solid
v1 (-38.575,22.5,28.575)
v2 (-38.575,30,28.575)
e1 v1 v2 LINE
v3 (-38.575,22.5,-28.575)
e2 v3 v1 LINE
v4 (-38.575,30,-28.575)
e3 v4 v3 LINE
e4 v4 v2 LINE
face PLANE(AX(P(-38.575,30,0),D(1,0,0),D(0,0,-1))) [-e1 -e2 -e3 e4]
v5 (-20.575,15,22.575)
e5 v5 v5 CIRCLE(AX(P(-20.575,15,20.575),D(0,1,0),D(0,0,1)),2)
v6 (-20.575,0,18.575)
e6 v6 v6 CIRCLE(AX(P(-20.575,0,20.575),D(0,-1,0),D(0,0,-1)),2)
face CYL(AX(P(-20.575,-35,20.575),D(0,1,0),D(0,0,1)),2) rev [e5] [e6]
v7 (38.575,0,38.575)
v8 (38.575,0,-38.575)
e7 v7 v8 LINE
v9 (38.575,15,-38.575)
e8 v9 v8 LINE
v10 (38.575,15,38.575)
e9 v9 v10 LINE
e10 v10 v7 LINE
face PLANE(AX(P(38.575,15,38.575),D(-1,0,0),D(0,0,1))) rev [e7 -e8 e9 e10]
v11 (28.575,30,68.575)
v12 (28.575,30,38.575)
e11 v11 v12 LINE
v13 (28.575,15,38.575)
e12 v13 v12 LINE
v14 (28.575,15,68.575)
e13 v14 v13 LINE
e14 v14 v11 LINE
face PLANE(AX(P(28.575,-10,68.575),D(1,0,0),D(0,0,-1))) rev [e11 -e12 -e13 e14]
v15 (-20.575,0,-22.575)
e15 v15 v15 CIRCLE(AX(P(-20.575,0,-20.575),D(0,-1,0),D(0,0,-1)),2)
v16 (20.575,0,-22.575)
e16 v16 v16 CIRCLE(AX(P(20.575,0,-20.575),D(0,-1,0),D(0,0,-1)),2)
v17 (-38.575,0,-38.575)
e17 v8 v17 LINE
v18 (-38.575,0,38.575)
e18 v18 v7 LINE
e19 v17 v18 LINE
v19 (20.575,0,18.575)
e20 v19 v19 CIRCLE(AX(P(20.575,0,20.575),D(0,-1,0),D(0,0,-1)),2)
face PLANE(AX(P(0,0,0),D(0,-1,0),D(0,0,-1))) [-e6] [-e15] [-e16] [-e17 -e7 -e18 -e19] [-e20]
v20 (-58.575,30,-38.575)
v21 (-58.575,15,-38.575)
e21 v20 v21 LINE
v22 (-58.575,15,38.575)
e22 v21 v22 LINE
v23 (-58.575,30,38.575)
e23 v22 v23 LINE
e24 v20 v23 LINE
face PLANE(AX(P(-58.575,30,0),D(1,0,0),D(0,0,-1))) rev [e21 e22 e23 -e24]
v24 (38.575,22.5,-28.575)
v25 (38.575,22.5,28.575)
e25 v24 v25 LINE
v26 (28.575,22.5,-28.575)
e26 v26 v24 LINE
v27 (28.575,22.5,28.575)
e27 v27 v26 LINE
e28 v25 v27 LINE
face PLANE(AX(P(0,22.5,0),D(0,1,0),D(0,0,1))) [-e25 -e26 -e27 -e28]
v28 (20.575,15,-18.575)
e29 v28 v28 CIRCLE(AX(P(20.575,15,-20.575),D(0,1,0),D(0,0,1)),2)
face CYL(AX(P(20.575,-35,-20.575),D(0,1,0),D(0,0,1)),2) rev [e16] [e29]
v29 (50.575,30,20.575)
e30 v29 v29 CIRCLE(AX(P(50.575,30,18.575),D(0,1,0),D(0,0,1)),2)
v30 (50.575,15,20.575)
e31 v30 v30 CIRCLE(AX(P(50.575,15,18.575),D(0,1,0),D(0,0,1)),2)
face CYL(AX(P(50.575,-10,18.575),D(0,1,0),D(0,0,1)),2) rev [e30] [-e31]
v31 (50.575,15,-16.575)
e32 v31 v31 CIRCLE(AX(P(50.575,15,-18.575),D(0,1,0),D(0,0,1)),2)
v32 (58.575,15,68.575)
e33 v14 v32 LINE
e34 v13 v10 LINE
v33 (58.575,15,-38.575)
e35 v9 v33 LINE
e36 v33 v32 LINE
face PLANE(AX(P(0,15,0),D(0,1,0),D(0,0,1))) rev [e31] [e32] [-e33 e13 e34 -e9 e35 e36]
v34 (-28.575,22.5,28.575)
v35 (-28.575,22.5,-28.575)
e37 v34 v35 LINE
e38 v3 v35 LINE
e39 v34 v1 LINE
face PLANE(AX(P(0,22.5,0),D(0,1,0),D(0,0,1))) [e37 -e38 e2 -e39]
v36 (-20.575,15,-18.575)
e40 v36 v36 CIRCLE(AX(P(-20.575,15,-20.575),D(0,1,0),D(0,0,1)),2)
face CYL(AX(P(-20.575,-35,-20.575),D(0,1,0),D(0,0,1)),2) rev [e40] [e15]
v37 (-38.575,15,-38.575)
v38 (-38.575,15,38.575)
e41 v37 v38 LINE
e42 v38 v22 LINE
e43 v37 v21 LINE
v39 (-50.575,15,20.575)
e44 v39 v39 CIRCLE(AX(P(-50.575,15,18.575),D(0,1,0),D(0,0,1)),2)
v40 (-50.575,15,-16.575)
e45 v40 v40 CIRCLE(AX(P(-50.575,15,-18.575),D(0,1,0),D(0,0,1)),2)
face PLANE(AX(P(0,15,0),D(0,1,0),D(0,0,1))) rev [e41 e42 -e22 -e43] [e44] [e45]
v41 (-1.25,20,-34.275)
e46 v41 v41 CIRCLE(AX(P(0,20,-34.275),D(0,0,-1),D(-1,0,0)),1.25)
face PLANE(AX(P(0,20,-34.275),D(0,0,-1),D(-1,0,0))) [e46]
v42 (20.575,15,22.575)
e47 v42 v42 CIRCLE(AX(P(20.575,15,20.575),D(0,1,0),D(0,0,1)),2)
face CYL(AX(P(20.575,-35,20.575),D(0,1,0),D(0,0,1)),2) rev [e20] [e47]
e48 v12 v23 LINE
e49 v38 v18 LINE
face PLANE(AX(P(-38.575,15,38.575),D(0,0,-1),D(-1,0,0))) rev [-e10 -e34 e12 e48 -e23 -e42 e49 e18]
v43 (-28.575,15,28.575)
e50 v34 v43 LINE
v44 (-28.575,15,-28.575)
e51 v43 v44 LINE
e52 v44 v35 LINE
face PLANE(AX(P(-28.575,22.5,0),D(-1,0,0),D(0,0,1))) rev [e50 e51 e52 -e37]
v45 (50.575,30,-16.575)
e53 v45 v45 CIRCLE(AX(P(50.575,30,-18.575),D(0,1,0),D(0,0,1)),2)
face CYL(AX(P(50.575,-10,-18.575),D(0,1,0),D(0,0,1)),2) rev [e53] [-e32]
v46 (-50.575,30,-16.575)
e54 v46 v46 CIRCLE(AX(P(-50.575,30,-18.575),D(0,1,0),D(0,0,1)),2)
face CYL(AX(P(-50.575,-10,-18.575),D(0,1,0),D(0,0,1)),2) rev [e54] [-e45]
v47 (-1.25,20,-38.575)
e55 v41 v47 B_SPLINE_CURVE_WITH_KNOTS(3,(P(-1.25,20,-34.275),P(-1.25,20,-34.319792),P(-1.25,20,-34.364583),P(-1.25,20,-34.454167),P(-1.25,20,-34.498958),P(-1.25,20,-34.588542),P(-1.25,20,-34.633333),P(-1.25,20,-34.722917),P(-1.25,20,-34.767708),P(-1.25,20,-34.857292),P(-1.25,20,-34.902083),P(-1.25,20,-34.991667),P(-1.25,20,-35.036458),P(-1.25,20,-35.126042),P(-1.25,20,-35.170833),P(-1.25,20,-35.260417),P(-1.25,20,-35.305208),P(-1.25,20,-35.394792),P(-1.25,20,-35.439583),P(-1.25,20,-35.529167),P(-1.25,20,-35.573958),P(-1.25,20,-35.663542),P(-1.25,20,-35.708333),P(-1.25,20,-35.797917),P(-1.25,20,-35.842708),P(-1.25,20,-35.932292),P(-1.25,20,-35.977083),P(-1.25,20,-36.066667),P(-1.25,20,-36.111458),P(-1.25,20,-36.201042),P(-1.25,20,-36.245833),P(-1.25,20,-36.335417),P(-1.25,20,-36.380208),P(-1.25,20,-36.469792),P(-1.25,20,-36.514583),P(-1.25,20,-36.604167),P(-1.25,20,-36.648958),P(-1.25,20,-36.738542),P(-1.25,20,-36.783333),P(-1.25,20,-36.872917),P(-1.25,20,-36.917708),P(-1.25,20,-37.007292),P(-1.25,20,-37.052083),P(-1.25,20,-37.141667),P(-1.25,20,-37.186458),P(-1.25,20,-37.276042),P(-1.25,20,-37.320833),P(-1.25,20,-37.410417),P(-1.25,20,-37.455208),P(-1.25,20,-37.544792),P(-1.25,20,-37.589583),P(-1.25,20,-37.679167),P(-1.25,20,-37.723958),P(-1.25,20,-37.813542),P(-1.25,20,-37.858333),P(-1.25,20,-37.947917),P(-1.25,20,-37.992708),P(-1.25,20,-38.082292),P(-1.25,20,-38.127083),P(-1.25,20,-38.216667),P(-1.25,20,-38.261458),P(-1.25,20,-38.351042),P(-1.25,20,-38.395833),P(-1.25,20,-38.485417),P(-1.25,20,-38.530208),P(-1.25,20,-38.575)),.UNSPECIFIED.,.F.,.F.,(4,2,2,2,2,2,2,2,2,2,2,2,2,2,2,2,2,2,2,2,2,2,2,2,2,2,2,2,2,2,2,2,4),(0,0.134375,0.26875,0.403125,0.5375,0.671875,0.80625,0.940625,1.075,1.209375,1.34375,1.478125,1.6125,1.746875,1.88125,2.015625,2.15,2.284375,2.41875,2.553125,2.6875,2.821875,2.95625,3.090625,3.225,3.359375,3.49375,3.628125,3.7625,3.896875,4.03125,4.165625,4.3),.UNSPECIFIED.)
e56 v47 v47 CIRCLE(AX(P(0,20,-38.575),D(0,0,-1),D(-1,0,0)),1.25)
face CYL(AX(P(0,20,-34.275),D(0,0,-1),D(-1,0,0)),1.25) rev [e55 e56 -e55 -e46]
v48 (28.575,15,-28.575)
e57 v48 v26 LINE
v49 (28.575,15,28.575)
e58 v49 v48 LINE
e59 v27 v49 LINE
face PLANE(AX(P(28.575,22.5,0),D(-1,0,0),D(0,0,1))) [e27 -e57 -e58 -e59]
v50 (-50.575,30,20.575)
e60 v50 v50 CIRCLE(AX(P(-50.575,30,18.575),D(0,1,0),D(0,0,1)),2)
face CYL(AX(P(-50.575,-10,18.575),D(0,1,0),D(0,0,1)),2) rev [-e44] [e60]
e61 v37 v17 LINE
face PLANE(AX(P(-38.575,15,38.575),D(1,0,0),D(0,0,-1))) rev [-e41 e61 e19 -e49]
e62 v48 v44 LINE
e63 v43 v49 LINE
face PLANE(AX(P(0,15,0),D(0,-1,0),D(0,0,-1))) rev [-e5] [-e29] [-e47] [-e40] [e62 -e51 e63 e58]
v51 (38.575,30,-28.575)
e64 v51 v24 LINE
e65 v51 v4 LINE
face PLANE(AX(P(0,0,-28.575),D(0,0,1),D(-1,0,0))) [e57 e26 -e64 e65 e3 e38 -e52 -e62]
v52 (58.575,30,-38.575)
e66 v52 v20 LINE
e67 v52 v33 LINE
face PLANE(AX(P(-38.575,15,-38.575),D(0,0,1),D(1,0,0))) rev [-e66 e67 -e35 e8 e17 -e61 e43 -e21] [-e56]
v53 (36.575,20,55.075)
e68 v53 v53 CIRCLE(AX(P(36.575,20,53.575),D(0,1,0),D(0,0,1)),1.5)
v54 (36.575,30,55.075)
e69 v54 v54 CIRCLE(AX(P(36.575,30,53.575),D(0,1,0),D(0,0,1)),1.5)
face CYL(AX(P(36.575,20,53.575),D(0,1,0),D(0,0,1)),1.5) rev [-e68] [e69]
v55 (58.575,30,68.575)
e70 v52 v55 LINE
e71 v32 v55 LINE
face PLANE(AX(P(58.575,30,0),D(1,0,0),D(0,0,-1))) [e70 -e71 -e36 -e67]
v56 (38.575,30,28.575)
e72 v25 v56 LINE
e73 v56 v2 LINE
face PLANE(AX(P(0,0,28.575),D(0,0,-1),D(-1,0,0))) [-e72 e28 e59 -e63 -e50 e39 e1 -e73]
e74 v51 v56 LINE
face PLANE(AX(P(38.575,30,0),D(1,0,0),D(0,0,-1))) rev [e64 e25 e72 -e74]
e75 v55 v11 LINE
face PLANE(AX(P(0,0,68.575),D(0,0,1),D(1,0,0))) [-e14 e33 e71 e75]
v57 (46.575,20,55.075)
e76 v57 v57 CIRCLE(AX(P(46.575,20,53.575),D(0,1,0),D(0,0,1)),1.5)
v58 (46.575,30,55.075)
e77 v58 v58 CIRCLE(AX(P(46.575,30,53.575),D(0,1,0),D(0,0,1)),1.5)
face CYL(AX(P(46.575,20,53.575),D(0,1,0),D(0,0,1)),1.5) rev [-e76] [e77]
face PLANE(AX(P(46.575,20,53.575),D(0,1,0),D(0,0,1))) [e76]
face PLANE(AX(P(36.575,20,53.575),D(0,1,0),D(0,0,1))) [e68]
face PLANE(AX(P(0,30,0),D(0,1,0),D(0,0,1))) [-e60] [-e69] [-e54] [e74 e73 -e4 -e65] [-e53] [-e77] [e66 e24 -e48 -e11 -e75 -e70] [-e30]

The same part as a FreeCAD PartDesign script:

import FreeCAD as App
import Part
import Sketcher

V = App.Vector
Q = App.Units.Quantity

doc = App.newDocument("Part")
body = doc.addObject("PartDesign::Body", "Body")

# Sketch on XZ plane
sketch1 = body.newObject("Sketcher::SketchObject", "Sketch")
sketch1.AttachmentSupport = (doc.getObject("XZ_Plane"), [""])
sketch1.MapMode = "FlatFace"
sketch1.addGeometry([
    Part.LineSegment(V(-39, -39, 0), V(-39, 39, 0)),
    Part.LineSegment(V(-39, 39, 0), V(39, 39, 0)),
    Part.LineSegment(V(39, 39, 0), V(39, -39, 0)),
    Part.LineSegment(V(39, -39, 0), V(-39, -39, 0)),
], False)
sketch1.addConstraint([
    Sketcher.Constraint("Coincident", 0, 2, 1, 1),
    Sketcher.Constraint("Coincident", 1, 2, 2, 1),
    Sketcher.Constraint("Coincident", 2, 2, 3, 1),
    Sketcher.Constraint("Coincident", 3, 2, 0, 1),
    Sketcher.Constraint("Vertical", 0),
    Sketcher.Constraint("Horizontal", 1),
    Sketcher.Constraint("Vertical", 2),
    Sketcher.Constraint("Horizontal", 3),
    Sketcher.Constraint("Symmetric", 0, 2, 2, 2, -1, 1),
    Sketcher.Constraint("Equal", 3, 0),
    Sketcher.Constraint("DistanceX", 1, 1, 1, 2, Q("77.15 mm")),
])
pad1 = body.newObject("PartDesign::Pad", "Pad")
pad1.Profile = sketch1
pad1.Length = 15
pad1.Reversed = True

# Sketch on XZ plane
sketch2 = body.newObject("Sketcher::SketchObject", "Sketch001")
sketch2.AttachmentSupport = (doc.getObject("XZ_Plane"), [""])
sketch2.MapMode = "FlatFace"
sketch2.AttachmentOffset = App.Placement(V(0, 0, -15), App.Rotation())
sketch2.addGeometry([
    Part.LineSegment(V(-39, -39, 0), V(-39, 39, 0)),
    Part.LineSegment(V(-39, 39, 0), V(-29, 39, 0)),
    Part.LineSegment(V(-29, 39, 0), V(-29, -39, 0)),
    Part.LineSegment(V(-29, -39, 0), V(-39, -39, 0)),
], False)
sketch2.addConstraint([
    Sketcher.Constraint("Coincident", 0, 2, 1, 1),
    Sketcher.Constraint("Coincident", 1, 2, 2, 1),
    Sketcher.Constraint("Coincident", 2, 2, 3, 1),
    Sketcher.Constraint("Coincident", 3, 2, 0, 1),
    Sketcher.Constraint("Vertical", 0),
    Sketcher.Constraint("Horizontal", 1),
    Sketcher.Constraint("Vertical", 2),
    Sketcher.Constraint("Horizontal", 3),
    Sketcher.Constraint("DistanceX", 1, 1, 1, 2, Q("10 mm")),
    Sketcher.Constraint("DistanceY", 0, 1, 0, 2, Q("77.15 mm")),
    Sketcher.Constraint("DistanceX", 0, 2, -1, 1, Q("38.575 mm")),
    Sketcher.Constraint("DistanceY", -1, 1, 0, 2, Q("38.575 mm")),
])
pad2 = body.newObject("PartDesign::Pad", "Pad001")
pad2.Profile = sketch2
pad2.Length = 7.5
pad2.Reversed = True

# Sketch on XZ plane
sketch3 = body.newObject("Sketcher::SketchObject", "Sketch002")
sketch3.AttachmentSupport = (doc.getObject("XZ_Plane"), [""])
sketch3.MapMode = "FlatFace"
sketch3.AttachmentOffset = App.Placement(V(0, 0, -15), App.Rotation())
sketch3.addGeometry([
    Part.LineSegment(V(-59, -39, 0), V(-59, 39, 0)),
    Part.LineSegment(V(-59, 39, 0), V(-39, 39, 0)),
    Part.LineSegment(V(-39, 39, 0), V(-39, -39, 0)),
    Part.LineSegment(V(-39, -39, 0), V(-59, -39, 0)),
], False)
sketch3.addConstraint([
    Sketcher.Constraint("Coincident", 0, 2, 1, 1),
    Sketcher.Constraint("Coincident", 1, 2, 2, 1),
    Sketcher.Constraint("Coincident", 2, 2, 3, 1),
    Sketcher.Constraint("Coincident", 3, 2, 0, 1),
    Sketcher.Constraint("Vertical", 0),
    Sketcher.Constraint("Horizontal", 1),
    Sketcher.Constraint("Vertical", 2),
    Sketcher.Constraint("Horizontal", 3),
    Sketcher.Constraint("DistanceX", 1, 1, 1, 2, Q("20 mm")),
    Sketcher.Constraint("DistanceY", 0, 1, 0, 2, Q("77.15 mm")),
    Sketcher.Constraint("DistanceX", 0, 2, -1, 1, Q("58.575 mm")),
    Sketcher.Constraint("DistanceY", -1, 1, 0, 2, Q("38.575 mm")),
])
pad3 = body.newObject("PartDesign::Pad", "Pad002")
pad3.Profile = sketch3
pad3.Length = 15
pad3.Reversed = True
doc.recompute()

mirrored = body.newObject("PartDesign::Mirrored", "Mirrored")
mirrored.Originals = [pad2, pad3]
mirrored.MirrorPlane = (doc.getObject("YZ_Plane"), [""])
body.Tip = mirrored

# Sketch on XY plane
sketch4 = body.newObject("Sketcher::SketchObject", "Sketch003")
sketch4.AttachmentSupport = (doc.getObject("XY_Plane"), [""])
sketch4.MapMode = "FlatFace"
sketch4.AttachmentOffset = App.Placement(V(0, 0, 38.575), App.Rotation())
sketch4.addGeometry([
    Part.LineSegment(V(59, 30, 0), V(-59, 30, 0)),  # 0
    Part.LineSegment(V(-59, 30, 0), V(-59, 15, 0)),  # 1
    Part.LineSegment(V(-59, 15, 0), V(-39, 15, 0)),  # 2
    Part.LineSegment(V(-39, 15, 0), V(-39, 0, 0)),  # 3
    Part.LineSegment(V(-39, 0, 0), V(39, 0, 0)),  # 4
    Part.LineSegment(V(39, 0, 0), V(39, 15, 0)),  # 5
    Part.LineSegment(V(39, 15, 0), V(59, 15, 0)),  # 6
    Part.LineSegment(V(59, 15, 0), V(59, 30, 0)),  # 7
], False)
sketch4.addConstraint([
    Sketcher.Constraint("Coincident", 0, 2, 1, 1),
    Sketcher.Constraint("Coincident", 1, 2, 2, 1),
    Sketcher.Constraint("Coincident", 2, 2, 3, 1),
    Sketcher.Constraint("Coincident", 3, 2, 4, 1),
    Sketcher.Constraint("Coincident", 4, 2, 5, 1),
    Sketcher.Constraint("Coincident", 5, 2, 6, 1),
    Sketcher.Constraint("Coincident", 6, 2, 7, 1),
    Sketcher.Constraint("Coincident", 7, 2, 0, 1),
    Sketcher.Constraint("Horizontal", 0),
    Sketcher.Constraint("Vertical", 1),
    Sketcher.Constraint("Horizontal", 2),
    Sketcher.Constraint("Vertical", 3),
    Sketcher.Constraint("Horizontal", 4),
    Sketcher.Constraint("Vertical", 5),
    Sketcher.Constraint("Horizontal", 6),
    Sketcher.Constraint("Vertical", 7),
    Sketcher.Constraint("Symmetric", 3, 2, 4, 2, -1, 1),
    Sketcher.Constraint("Symmetric", 1, 2, 6, 2, -2),
    Sketcher.Constraint("Equal", 1, 3),
    Sketcher.Constraint("DistanceX", 2, 1, 2, 2, Q("20 mm")),
    Sketcher.Constraint("DistanceY", 1, 2, 1, 1, Q("15 mm")),
    Sketcher.Constraint("DistanceX", 0, 2, 0, 1, Q("117.15 mm")),
])
pad4 = body.newObject("PartDesign::Pad", "Pad003")
pad4.Profile = sketch4
pad4.Length = 10
pad4.Reversed = True

# Sketch on XZ plane
sketch5 = body.newObject("Sketcher::SketchObject", "Sketch004")
sketch5.AttachmentSupport = (doc.getObject("XZ_Plane"), [""])
sketch5.MapMode = "FlatFace"
sketch5.AttachmentOffset = App.Placement(V(0, 0, -15), App.Rotation())
sketch5.addGeometry([
    Part.Circle(V(20.6, -20.6, 0), V(0, 0, 1), 2),
    Part.Circle(V(-20.6, -20.6, 0), V(0, 0, 1), 2),
    Part.Circle(V(20.6, 20.6, 0), V(0, 0, 1), 2),
    Part.Circle(V(-20.6, 20.6, 0), V(0, 0, 1), 2),
], False)
sketch5.addConstraint([
    Sketcher.Constraint("Equal", 0, 1),
    Sketcher.Constraint("Equal", 1, 2),
    Sketcher.Constraint("Equal", 2, 3),
    Sketcher.Constraint("Symmetric", 1, 3, 2, 3, -1, 1),
    Sketcher.Constraint("Symmetric", 0, 3, 3, 3, -1, 1),
    Sketcher.Constraint("Symmetric", 0, 3, 1, 3, -2),
    Sketcher.Constraint("Diameter", 0, Q("4 mm")),
    Sketcher.Constraint("DistanceX", 1, 3, 0, 3, Q("41.15 mm")),
    Sketcher.Constraint("DistanceY", 0, 3, 2, 3, Q("41.15 mm")),
])
pocket1 = body.newObject("PartDesign::Pocket", "Pocket")
pocket1.Profile = sketch5
pocket1.Length = 50
pocket1.Reversed = True

# Sketch on XZ plane
sketch6 = body.newObject("Sketcher::SketchObject", "Sketch005")
sketch6.AttachmentSupport = (doc.getObject("XZ_Plane"), [""])
sketch6.MapMode = "FlatFace"
sketch6.AttachmentOffset = App.Placement(V(0, 0, -30), App.Rotation())
sketch6.addGeometry([
    Part.Circle(V(50.6, -18.6, 0), V(0, 0, 1), 2),
    Part.Circle(V(50.6, 18.6, 0), V(0, 0, 1), 2),
    Part.Circle(V(-50.6, -18.6, 0), V(0, 0, 1), 2),
    Part.Circle(V(-50.6, 18.6, 0), V(0, 0, 1), 2),
], False)
sketch6.addConstraint([
    Sketcher.Constraint("Equal", 0, 1),
    Sketcher.Constraint("Equal", 1, 2),
    Sketcher.Constraint("Equal", 2, 3),
    Sketcher.Constraint("Symmetric", 1, 3, 2, 3, -1, 1),
    Sketcher.Constraint("Symmetric", 0, 3, 3, 3, -1, 1),
    Sketcher.Constraint("Symmetric", 0, 3, 2, 3, -2),
    Sketcher.Constraint("Diameter", 0, Q("4 mm")),
    Sketcher.Constraint("DistanceY", 0, 3, 1, 3, Q("37.15 mm")),
    Sketcher.Constraint("DistanceX", 2, 3, 0, 3, Q("101.15 mm")),
])
pocket2 = body.newObject("PartDesign::Pocket", "Pocket001")
pocket2.Profile = sketch6
pocket2.Length = 40
pocket2.Reversed = True
doc.recompute()

mirrored2 = body.newObject("PartDesign::Mirrored", "Mirrored001")
mirrored2.Originals = [pad4]
mirrored2.MirrorPlane = (doc.getObject("XY_Plane"), [""])
body.Tip = mirrored2

# Sketch on XY plane
sketch7 = body.newObject("Sketcher::SketchObject", "Sketch006")
sketch7.AttachmentSupport = (doc.getObject("XY_Plane"), [""])
sketch7.MapMode = "FlatFace"
sketch7.AttachmentOffset = App.Placement(V(0, 0, 38.575), App.Rotation())
sketch7.addGeometry([
    Part.LineSegment(V(-59, 30, 0), V(-59, 15, 0)),
    Part.LineSegment(V(-59, 15, 0), V(59, 15, 0)),
    Part.LineSegment(V(59, 15, 0), V(59, 30, 0)),
    Part.LineSegment(V(59, 30, 0), V(-59, 30, 0)),
], False)
sketch7.addConstraint([
    Sketcher.Constraint("Coincident", 0, 2, 1, 1),
    Sketcher.Constraint("Coincident", 1, 2, 2, 1),
    Sketcher.Constraint("Coincident", 2, 2, 3, 1),
    Sketcher.Constraint("Coincident", 3, 2, 0, 1),
    Sketcher.Constraint("Vertical", 0),
    Sketcher.Constraint("Horizontal", 1),
    Sketcher.Constraint("Vertical", 2),
    Sketcher.Constraint("Horizontal", 3),
    Sketcher.Constraint("DistanceY", 0, 2, 0, 1, Q("15 mm")),
    Sketcher.Constraint("DistanceY", -1, 1, 0, 2, Q("15 mm")),
    Sketcher.Constraint("DistanceX", 1, 1, 1, 2, Q("117.15 mm")),
    Sketcher.Constraint("DistanceX", 0, 2, -1, 1, Q("58.575 mm")),
])
pad5 = body.newObject("PartDesign::Pad", "Pad004")
pad5.Profile = sketch7
pad5.Length = 30

# Sketch on XZ plane
sketch8 = body.newObject("Sketcher::SketchObject", "Sketch007")
sketch8.AttachmentSupport = (doc.getObject("XZ_Plane"), [""])
sketch8.MapMode = "FlatFace"
sketch8.AttachmentOffset = App.Placement(V(0, 0, -30), App.Rotation())
sketch8.addGeometry([
    Part.LineSegment(V(-59, 39, 0), V(-59, 69, 0)),
    Part.LineSegment(V(-59, 69, 0), V(29, 69, 0)),
    Part.LineSegment(V(29, 69, 0), V(29, 39, 0)),
    Part.LineSegment(V(29, 39, 0), V(-59, 39, 0)),
], False)
sketch8.addConstraint([
    Sketcher.Constraint("Coincident", 0, 2, 1, 1),
    Sketcher.Constraint("Coincident", 1, 2, 2, 1),
    Sketcher.Constraint("Coincident", 2, 2, 3, 1),
    Sketcher.Constraint("Coincident", 3, 2, 0, 1),
    Sketcher.Constraint("Vertical", 0),
    Sketcher.Constraint("Horizontal", 1),
    Sketcher.Constraint("Vertical", 2),
    Sketcher.Constraint("Horizontal", 3),
    Sketcher.Constraint("DistanceY", 0, 1, 0, 2, Q("30 mm")),
    Sketcher.Constraint("DistanceX", 1, 1, 1, 2, Q("87.15 mm")),
    Sketcher.Constraint("DistanceX", 0, 2, -1, 1, Q("58.575 mm")),
    Sketcher.Constraint("DistanceY", -1, 1, 0, 2, Q("68.575 mm")),
])
pocket3 = body.newObject("PartDesign::Pocket", "Pocket002")
pocket3.Profile = sketch8
pocket3.Length = 40
pocket3.Reversed = True

# Sketch on XZ plane
sketch9 = body.newObject("Sketcher::SketchObject", "Sketch008")
sketch9.AttachmentSupport = (doc.getObject("XZ_Plane"), [""])
sketch9.MapMode = "FlatFace"
sketch9.AttachmentOffset = App.Placement(V(0, 0, -30), App.Rotation())
sketch9.addGeometry([
    Part.Circle(V(36.6, 53.6, 0), V(0, 0, 1), 1.5),
    Part.Circle(V(46.6, 53.6, 0), V(0, 0, 1), 1.5),
], False)
sketch9.addConstraint([
    Sketcher.Constraint("Equal", 0, 1),
    Sketcher.Constraint("Horizontal", 0, 3, 1, 3),
    Sketcher.Constraint("Diameter", 0, Q("3 mm")),
    Sketcher.Constraint("DistanceX", 0, 3, 1, 3, Q("10 mm")),
    Sketcher.Constraint("DistanceX", -1, 1, 0, 3, Q("36.575 mm")),
    Sketcher.Constraint("DistanceY", -1, 1, 0, 3, Q("53.575 mm")),
])
pocket4 = body.newObject("PartDesign::Pocket", "Pocket003")
pocket4.Profile = sketch9
pocket4.Length = 10
pocket4.Reversed = True

# Sketch on XY plane
sketch10 = body.newObject("Sketcher::SketchObject", "Sketch009")
sketch10.AttachmentSupport = (doc.getObject("XY_Plane"), [""])
sketch10.MapMode = "FlatFace"
sketch10.AttachmentOffset = App.Placement(V(0, 0, -38.575), App.Rotation())
sketch10.addGeometry(Part.Circle(V(0, 20, 0), V(0, 0, 1), 1.2), False)
sketch10.addConstraint([
    Sketcher.Constraint("PointOnObject", 0, 3, -2),
    Sketcher.Constraint("Diameter", 0, Q("2.5 mm")),
    Sketcher.Constraint("DistanceY", -1, 1, 0, 3, Q("20 mm")),
])
pocket5 = body.newObject("PartDesign::Pocket", "Pocket004")
pocket5.Profile = sketch10
pocket5.Length = 4.3
pocket5.Reversed = True

doc.recompute()
